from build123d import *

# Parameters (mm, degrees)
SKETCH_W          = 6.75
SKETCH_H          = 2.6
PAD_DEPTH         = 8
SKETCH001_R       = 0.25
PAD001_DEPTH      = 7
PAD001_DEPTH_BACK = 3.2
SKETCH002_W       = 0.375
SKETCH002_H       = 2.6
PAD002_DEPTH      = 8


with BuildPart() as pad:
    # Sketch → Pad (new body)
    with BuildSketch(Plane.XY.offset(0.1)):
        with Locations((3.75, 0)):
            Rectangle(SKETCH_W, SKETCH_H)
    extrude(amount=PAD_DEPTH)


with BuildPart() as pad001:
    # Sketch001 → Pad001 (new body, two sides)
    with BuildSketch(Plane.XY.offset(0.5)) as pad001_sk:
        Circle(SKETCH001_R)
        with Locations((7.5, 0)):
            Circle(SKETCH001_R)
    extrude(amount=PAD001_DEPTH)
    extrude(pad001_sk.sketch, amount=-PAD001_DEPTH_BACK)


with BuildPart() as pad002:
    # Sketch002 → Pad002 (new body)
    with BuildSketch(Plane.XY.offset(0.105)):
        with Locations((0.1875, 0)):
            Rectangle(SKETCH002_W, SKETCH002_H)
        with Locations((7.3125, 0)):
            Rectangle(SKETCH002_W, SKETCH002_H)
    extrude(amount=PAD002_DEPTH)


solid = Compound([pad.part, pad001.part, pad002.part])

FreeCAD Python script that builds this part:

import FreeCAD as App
import Part
import Sketcher

V = App.Vector

doc = App.newDocument("Part")
body = doc.addObject("PartDesign::Body", "Body")

# Sketch on XY plane
sketch1 = body.newObject("Sketcher::SketchObject", "Sketch")
sketch1.AttachmentSupport = (doc.getObject("XY_Plane"), [""])
sketch1.MapMode = "FlatFace"
sketch1.AttachmentOffset = App.Placement(V(0, 0, 0.1), App.Rotation())
sketch1.addGeometry(Part.LineSegment(V(0.375, 1.3, 0), V(0.375, -1.3, 0)), False)
sketch1.addGeometry(Part.LineSegment(V(0.375, -1.3, 0), V(7.125, -1.3, 0)), False)
sketch1.addGeometry(Part.LineSegment(V(7.125, -1.3, 0), V(7.125, 1.3, 0)), False)
sketch1.addGeometry(Part.LineSegment(V(7.125, 1.3, 0), V(0.375, 1.3, 0)), False)
sketch1.addConstraint(Sketcher.Constraint("Coincident", 0, 2, 1, 1))
sketch1.addConstraint(Sketcher.Constraint("Coincident", 1, 2, 2, 1))
sketch1.addConstraint(Sketcher.Constraint("Coincident", 2, 2, 3, 1))
sketch1.addConstraint(Sketcher.Constraint("Coincident", 3, 2, 0, 1))
sketch1.addConstraint(Sketcher.Constraint("Vertical", 0))
sketch1.addConstraint(Sketcher.Constraint("Horizontal", 1))
sketch1.addConstraint(Sketcher.Constraint("Vertical", 2))
sketch1.addConstraint(Sketcher.Constraint("Horizontal", 3))
sketch1.addConstraint(Sketcher.Constraint("DistanceY", 0, 2, 0, 1, 2.6))
sketch1.addConstraint(Sketcher.Constraint("DistanceX", 1, 1, 1, 2, 6.75))
sketch1.addConstraint(Sketcher.Constraint("DistanceY", 0, 2, -1, 1, 1.3))
sketch1.addConstraint(Sketcher.Constraint("DistanceX", -1, 1, 0, 2, 0.375))
pad1 = body.newObject("PartDesign::Pad", "Pad")
pad1.Profile = sketch1
pad1.Length = 8
body2 = doc.addObject("PartDesign::Body", "Body001")
body2.AllowCompound = True

# Sketch on XY plane
sketch2 = body2.newObject("Sketcher::SketchObject", "Sketch001")
sketch2.AttachmentSupport = (doc.getObject("XY_Plane001"), [""])
sketch2.MapMode = "FlatFace"
sketch2.AttachmentOffset = App.Placement(V(0, 0, 0.5), App.Rotation())
sketch2.addGeometry(Part.Circle(V(0, 0, 0), V(0, 0, 1), 0.25), False)
sketch2.addGeometry(Part.Circle(V(7.5, 0, 0), V(0, 0, 1), 0.25), False)
sketch2.addConstraint(Sketcher.Constraint("Coincident", 0, 3, -1, 1))
sketch2.addConstraint(Sketcher.Constraint("Equal", 0, 1))
sketch2.addConstraint(Sketcher.Constraint("PointOnObject", 1, 3, -1))
sketch2.addConstraint(Sketcher.Constraint("Diameter", 0, 0.5))
sketch2.addConstraint(Sketcher.Constraint("DistanceX", -1, 1, 1, 3, 7.5))
pad2 = body2.newObject("PartDesign::Pad", "Pad001")
pad2.Profile = sketch2
pad2.Type = "TwoLengths"
pad2.Length = 7
pad2.Length2 = 3.2
body3 = doc.addObject("PartDesign::Body", "Body002")
body3.AllowCompound = True

# Sketch on XY plane
sketch3 = body3.newObject("Sketcher::SketchObject", "Sketch002")
sketch3.AttachmentSupport = (doc.getObject("XY_Plane002"), [""])
sketch3.MapMode = "FlatFace"
sketch3.AttachmentOffset = App.Placement(V(0, 0, 0.105), App.Rotation())
sketch3.addGeometry(Part.LineSegment(V(0, 1.3, 0), V(0, -1.3, 0)), False)
sketch3.addGeometry(Part.LineSegment(V(0, -1.3, 0), V(0.375, -1.3, 0)), False)
sketch3.addGeometry(Part.LineSegment(V(0.375, -1.3, 0), V(0.375, 1.3, 0)), False)
sketch3.addGeometry(Part.LineSegment(V(0.375, 1.3, 0), V(0, 1.3, 0)), False)
sketch3.addGeometry(Part.LineSegment(V(7.125, 1.3, 0), V(7.125, -1.3, 0)), False)
sketch3.addGeometry(Part.LineSegment(V(7.125, -1.3, 0), V(7.5, -1.3, 0)), False)
sketch3.addGeometry(Part.LineSegment(V(7.5, -1.3, 0), V(7.5, 1.3, 0)), False)
sketch3.addGeometry(Part.LineSegment(V(7.5, 1.3, 0), V(7.125, 1.3, 0)), False)
sketch3.addConstraint(Sketcher.Constraint("Coincident", 0, 2, 1, 1))
sketch3.addConstraint(Sketcher.Constraint("Coincident", 1, 2, 2, 1))
sketch3.addConstraint(Sketcher.Constraint("Coincident", 2, 2, 3, 1))
sketch3.addConstraint(Sketcher.Constraint("Coincident", 3, 2, 0, 1))
sketch3.addConstraint(Sketcher.Constraint("Coincident", 4, 2, 5, 1))
sketch3.addConstraint(Sketcher.Constraint("Coincident", 5, 2, 6, 1))
sketch3.addConstraint(Sketcher.Constraint("Coincident", 6, 2, 7, 1))
sketch3.addConstraint(Sketcher.Constraint("Coincident", 7, 2, 4, 1))
sketch3.addConstraint(Sketcher.Constraint("Vertical", 0))
sketch3.addConstraint(Sketcher.Constraint("Horizontal", 1))
sketch3.addConstraint(Sketcher.Constraint("Vertical", 2))
sketch3.addConstraint(Sketcher.Constraint("Horizontal", 3))
sketch3.addConstraint(Sketcher.Constraint("Vertical", 4))
sketch3.addConstraint(Sketcher.Constraint("Horizontal", 5))
sketch3.addConstraint(Sketcher.Constraint("Vertical", 6))
sketch3.addConstraint(Sketcher.Constraint("Horizontal", 7))
sketch3.addConstraint(Sketcher.Constraint("Symmetric", 0, 2, 3, 2, -1, 1))
sketch3.addConstraint(Sketcher.Constraint("Horizontal", 1, 2, 4, 2))
sketch3.addConstraint(Sketcher.Constraint("Horizontal", 3, 2, 6, 2))
sketch3.addConstraint(Sketcher.Constraint("Equal", 3, 5))
sketch3.addConstraint(Sketcher.Constraint("DistanceY", 0, 2, 0, 1, 2.6))
sketch3.addConstraint(Sketcher.Constraint("DistanceX", -1, 1, 5, 2, 7.5))
sketch3.addConstraint(Sketcher.Constraint("DistanceX", 1, 1, 1, 2, 0.375))
pad3 = body3.newObject("PartDesign::Pad", "Pad002")
pad3.Profile = sketch3
pad3.Length = 8

doc.recompute()
